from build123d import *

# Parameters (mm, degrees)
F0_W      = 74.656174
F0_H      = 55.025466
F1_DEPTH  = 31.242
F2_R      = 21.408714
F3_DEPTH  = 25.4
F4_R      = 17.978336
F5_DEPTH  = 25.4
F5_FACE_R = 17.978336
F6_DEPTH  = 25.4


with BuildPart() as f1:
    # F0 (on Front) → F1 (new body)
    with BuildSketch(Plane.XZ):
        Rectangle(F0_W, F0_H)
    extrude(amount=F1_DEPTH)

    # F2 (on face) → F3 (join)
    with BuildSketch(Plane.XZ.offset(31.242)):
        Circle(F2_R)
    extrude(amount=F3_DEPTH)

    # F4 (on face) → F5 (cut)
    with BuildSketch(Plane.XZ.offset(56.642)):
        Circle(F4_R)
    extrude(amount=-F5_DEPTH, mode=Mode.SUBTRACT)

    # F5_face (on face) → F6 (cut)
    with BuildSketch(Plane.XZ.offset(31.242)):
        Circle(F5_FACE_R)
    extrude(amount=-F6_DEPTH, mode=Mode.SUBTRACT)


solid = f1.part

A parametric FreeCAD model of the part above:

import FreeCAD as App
import Part
import Sketcher
Q = App.Units.Quantity

doc = App.newDocument("Part")
body = doc.addObject("PartDesign::Body", "Body")

# Sketch on XZ plane
sketch1 = doc.addObject("Sketcher::SketchObject", "Sketch")
body.addObject(sketch1)
sketch1.AttachmentSupport = (doc.XZ_Plane, [""])
sketch1.MapMode = "FlatFace"
sketch1.addGeometry([
    Part.LineSegment(App.Vector(-37, 28, 0), App.Vector(-37, -28, 0)),
    Part.LineSegment(App.Vector(-37, -28, 0), App.Vector(37, -28, 0)),
    Part.LineSegment(App.Vector(37, -28, 0), App.Vector(37, 28, 0)),
    Part.LineSegment(App.Vector(37, 28, 0), App.Vector(-37, 28, 0)),
], False)
sketch1.addConstraint([
    Sketcher.Constraint("Coincident", 0, 2, 1, 1),
    Sketcher.Constraint("Coincident", 1, 2, 2, 1),
    Sketcher.Constraint("Coincident", 2, 2, 3, 1),
    Sketcher.Constraint("Coincident", 3, 2, 0, 1),
    Sketcher.Constraint("Vertical", 0),
    Sketcher.Constraint("Horizontal", 1),
    Sketcher.Constraint("Vertical", 2),
    Sketcher.Constraint("Horizontal", 3),
    Sketcher.Constraint("Symmetric", 0, 2, 2, 2, -1, 1),
    Sketcher.Constraint("DistanceX", 1, 1, 1, 2, Q("74.656174 mm")),
    Sketcher.Constraint("DistanceY", 0, 2, 0, 1, Q("55.025466 mm")),
])
pad1 = doc.addObject("PartDesign::Pad", "Pad")
body.addObject(pad1)
pad1.Profile = sketch1
pad1.Length = Q("1.23 in")

# Sketch on XZ plane
sketch2 = doc.addObject("Sketcher::SketchObject", "Sketch001")
body.addObject(sketch2)
sketch2.AttachmentSupport = (doc.XZ_Plane, [""])
sketch2.MapMode = "FlatFace"
sketch2.AttachmentOffset = App.Placement(App.Vector(0, 0, 1.23 * 25.4), App.Rotation())
sketch2.addGeometry(Part.Circle(App.Vector(0, 0, 0), App.Vector(0, 0, 1), 21), False)
sketch2.addConstraint([
    Sketcher.Constraint("Coincident", 0, 3, -1, 1),
    Sketcher.Constraint("Diameter", 0, Q("42.817428 mm")),
])
pad2 = doc.addObject("PartDesign::Pad", "Pad001")
body.addObject(pad2)
pad2.Profile = sketch2
pad2.Length = Q("1 in")

# Sketch on XZ plane
sketch3 = doc.addObject("Sketcher::SketchObject", "Sketch002")
body.addObject(sketch3)
sketch3.AttachmentSupport = (doc.XZ_Plane, [""])
sketch3.MapMode = "FlatFace"
sketch3.AttachmentOffset = App.Placement(App.Vector(0, 0, 2.23 * 25.4), App.Rotation())
sketch3.addGeometry(Part.Circle(App.Vector(0, 0, 0), App.Vector(0, 0, 1), 18), False)
sketch3.addConstraint([
    Sketcher.Constraint("Coincident", 0, 3, -1, 1),
    Sketcher.Constraint("Diameter", 0, Q("35.956672 mm")),
])
pocket1 = doc.addObject("PartDesign::Pocket", "Pocket")
body.addObject(pocket1)
pocket1.Profile = sketch3
pocket1.Length = Q("1 in")

# Sketch on XZ plane
sketch4 = doc.addObject("Sketcher::SketchObject", "Sketch003")
body.addObject(sketch4)
sketch4.AttachmentSupport = (doc.XZ_Plane, [""])
sketch4.MapMode = "FlatFace"
sketch4.AttachmentOffset = App.Placement(App.Vector(0, 0, 1.23 * 25.4), App.Rotation())
sketch4.addGeometry(Part.Circle(App.Vector(0, 0, 0), App.Vector(0, 0, 1), 18), False)
sketch4.addConstraint([
    Sketcher.Constraint("Coincident", 0, 3, -1, 1),
    Sketcher.Constraint("Diameter", 0, Q("35.956672 mm")),
])
pocket2 = doc.addObject("PartDesign::Pocket", "Pocket001")
body.addObject(pocket2)
pocket2.Profile = sketch4
pocket2.Length = Q("1 in")

doc.recompute()
